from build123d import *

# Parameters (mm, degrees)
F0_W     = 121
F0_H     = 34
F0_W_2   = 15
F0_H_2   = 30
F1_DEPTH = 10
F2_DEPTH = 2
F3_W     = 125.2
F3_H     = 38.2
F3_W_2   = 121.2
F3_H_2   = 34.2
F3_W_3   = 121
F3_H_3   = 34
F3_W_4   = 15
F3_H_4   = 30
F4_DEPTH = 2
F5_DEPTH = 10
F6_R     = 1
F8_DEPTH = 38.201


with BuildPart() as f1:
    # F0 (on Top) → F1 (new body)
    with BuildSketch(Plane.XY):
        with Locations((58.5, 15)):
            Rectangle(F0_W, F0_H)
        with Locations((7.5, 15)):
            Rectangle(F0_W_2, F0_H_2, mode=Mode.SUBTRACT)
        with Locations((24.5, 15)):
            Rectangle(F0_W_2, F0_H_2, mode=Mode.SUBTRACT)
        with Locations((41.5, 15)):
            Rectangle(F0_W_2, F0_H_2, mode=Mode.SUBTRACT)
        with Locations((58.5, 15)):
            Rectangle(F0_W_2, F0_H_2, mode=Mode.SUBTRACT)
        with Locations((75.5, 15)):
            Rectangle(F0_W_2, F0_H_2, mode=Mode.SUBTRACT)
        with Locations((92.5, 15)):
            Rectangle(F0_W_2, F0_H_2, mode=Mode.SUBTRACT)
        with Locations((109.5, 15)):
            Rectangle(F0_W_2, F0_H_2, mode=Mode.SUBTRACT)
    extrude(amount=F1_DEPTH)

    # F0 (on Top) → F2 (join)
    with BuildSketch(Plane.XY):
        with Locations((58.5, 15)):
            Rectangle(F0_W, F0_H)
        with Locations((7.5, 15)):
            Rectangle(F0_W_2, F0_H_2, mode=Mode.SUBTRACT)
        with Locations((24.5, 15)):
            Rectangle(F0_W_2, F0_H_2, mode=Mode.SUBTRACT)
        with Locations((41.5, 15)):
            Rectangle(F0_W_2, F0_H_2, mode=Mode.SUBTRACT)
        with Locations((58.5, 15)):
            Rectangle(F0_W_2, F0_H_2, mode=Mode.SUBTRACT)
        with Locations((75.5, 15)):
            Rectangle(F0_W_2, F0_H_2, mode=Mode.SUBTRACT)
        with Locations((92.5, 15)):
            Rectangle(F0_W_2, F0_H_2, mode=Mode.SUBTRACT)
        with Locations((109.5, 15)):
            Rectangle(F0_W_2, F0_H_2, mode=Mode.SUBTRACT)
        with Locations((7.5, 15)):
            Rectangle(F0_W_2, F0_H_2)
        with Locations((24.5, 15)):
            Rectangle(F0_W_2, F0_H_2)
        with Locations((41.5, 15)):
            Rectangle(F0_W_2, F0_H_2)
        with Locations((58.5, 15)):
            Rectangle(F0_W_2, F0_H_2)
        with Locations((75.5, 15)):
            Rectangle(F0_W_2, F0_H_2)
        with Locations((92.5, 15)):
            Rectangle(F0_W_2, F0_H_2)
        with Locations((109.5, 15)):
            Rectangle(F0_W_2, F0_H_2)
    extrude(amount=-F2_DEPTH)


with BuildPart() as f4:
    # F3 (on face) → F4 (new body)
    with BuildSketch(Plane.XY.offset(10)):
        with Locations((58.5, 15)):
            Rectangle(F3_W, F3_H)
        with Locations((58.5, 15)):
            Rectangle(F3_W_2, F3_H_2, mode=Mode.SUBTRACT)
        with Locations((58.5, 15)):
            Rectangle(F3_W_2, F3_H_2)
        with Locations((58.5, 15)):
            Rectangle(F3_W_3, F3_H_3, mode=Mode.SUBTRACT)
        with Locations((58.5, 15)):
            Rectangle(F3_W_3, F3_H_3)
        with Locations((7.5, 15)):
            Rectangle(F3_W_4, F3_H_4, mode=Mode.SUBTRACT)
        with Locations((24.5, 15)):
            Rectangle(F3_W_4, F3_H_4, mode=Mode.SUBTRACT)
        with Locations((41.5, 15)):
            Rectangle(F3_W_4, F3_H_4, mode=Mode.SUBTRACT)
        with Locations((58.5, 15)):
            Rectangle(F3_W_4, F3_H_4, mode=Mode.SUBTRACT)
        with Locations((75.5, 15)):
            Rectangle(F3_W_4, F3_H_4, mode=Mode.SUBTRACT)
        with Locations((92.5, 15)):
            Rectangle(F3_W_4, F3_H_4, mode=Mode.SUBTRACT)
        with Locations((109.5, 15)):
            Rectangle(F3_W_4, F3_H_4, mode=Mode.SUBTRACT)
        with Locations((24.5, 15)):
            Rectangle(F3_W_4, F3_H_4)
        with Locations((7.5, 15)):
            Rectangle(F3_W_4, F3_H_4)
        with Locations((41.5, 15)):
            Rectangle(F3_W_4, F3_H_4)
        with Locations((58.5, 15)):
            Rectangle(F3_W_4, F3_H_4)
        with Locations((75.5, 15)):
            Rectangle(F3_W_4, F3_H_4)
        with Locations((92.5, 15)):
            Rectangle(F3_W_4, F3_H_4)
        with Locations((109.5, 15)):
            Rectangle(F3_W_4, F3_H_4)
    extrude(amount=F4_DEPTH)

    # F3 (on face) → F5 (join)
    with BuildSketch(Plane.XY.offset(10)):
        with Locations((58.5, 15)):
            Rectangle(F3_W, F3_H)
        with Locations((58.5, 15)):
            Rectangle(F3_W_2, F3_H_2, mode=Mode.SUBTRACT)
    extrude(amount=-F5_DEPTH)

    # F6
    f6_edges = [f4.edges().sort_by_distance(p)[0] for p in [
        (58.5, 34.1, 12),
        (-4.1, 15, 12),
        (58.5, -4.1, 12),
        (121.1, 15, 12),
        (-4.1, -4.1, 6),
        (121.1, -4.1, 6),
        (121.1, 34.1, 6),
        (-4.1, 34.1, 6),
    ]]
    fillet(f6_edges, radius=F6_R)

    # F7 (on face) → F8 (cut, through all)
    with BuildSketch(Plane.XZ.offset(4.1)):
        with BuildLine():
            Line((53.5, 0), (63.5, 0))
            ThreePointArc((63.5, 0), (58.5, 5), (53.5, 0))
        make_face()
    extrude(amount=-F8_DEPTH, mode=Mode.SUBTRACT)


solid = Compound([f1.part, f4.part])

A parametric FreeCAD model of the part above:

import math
import FreeCAD as App
import Part
import Sketcher

V = App.Vector


def edges_at(feature, points):
    """Names of the edges that pass closest to the given points."""
    edges = feature.Shape.Edges
    near = lambda p: min(range(len(edges)), key=lambda i: edges[i].distToShape(Part.Vertex(*p))[0])
    return sorted({f"Edge{near(p) + 1}" for p in points})

doc = App.newDocument("Part")
body = doc.addObject("PartDesign::Body", "Body")

sketch1 = doc.addObject("Sketcher::SketchObject", "Sketch")
body.addObject(sketch1)
sketch1.AttachmentSupport = (doc.XY_Plane, [""])
sketch1.MapMode = "FlatFace"
sketch1.addGeometry(Part.LineSegment(V(-2, 32, 0), V(-2, -2, 0)), False)
sketch1.addGeometry(Part.LineSegment(V(-2, -2, 0), V(119, -2, 0)), False)
sketch1.addGeometry(Part.LineSegment(V(119, -2, 0), V(119, 32, 0)), False)
sketch1.addGeometry(Part.LineSegment(V(119, 32, 0), V(-2, 32, 0)), False)
sketch1.addGeometry(Part.LineSegment(V(15, 0, 0), V(0, 0, 0)), False)
sketch1.addGeometry(Part.LineSegment(V(0, 0, 0), V(0, 30, 0)), False)
sketch1.addGeometry(Part.LineSegment(V(0, 30, 0), V(15, 30, 0)), False)
sketch1.addGeometry(Part.LineSegment(V(15, 30, 0), V(15, 0, 0)), False)
sketch1.addGeometry(Part.LineSegment(V(32, 0, 0), V(17, 0, 0)), False)
sketch1.addGeometry(Part.LineSegment(V(17, 0, 0), V(17, 30, 0)), False)
sketch1.addGeometry(Part.LineSegment(V(17, 30, 0), V(32, 30, 0)), False)
sketch1.addGeometry(Part.LineSegment(V(32, 30, 0), V(32, 0, 0)), False)
sketch1.addGeometry(Part.LineSegment(V(49, 0, 0), V(34, 0, 0)), False)
sketch1.addGeometry(Part.LineSegment(V(34, 0, 0), V(34, 30, 0)), False)
sketch1.addGeometry(Part.LineSegment(V(34, 30, 0), V(49, 30, 0)), False)
sketch1.addGeometry(Part.LineSegment(V(49, 30, 0), V(49, 0, 0)), False)
sketch1.addGeometry(Part.LineSegment(V(66, 0, 0), V(51, 0, 0)), False)
sketch1.addGeometry(Part.LineSegment(V(51, 0, 0), V(51, 30, 0)), False)
sketch1.addGeometry(Part.LineSegment(V(51, 30, 0), V(66, 30, 0)), False)
sketch1.addGeometry(Part.LineSegment(V(66, 30, 0), V(66, 0, 0)), False)
sketch1.addGeometry(Part.LineSegment(V(83, 0, 0), V(68, 0, 0)), False)
sketch1.addGeometry(Part.LineSegment(V(68, 0, 0), V(68, 30, 0)), False)
sketch1.addGeometry(Part.LineSegment(V(68, 30, 0), V(83, 30, 0)), False)
sketch1.addGeometry(Part.LineSegment(V(83, 30, 0), V(83, 0, 0)), False)
sketch1.addGeometry(Part.LineSegment(V(100, 0, 0), V(85, 0, 0)), False)
sketch1.addGeometry(Part.LineSegment(V(85, 0, 0), V(85, 30, 0)), False)
sketch1.addGeometry(Part.LineSegment(V(85, 30, 0), V(100, 30, 0)), False)
sketch1.addGeometry(Part.LineSegment(V(100, 30, 0), V(100, 0, 0)), False)
sketch1.addGeometry(Part.LineSegment(V(117, 0, 0), V(102, 0, 0)), False)
sketch1.addGeometry(Part.LineSegment(V(102, 0, 0), V(102, 30, 0)), False)
sketch1.addGeometry(Part.LineSegment(V(102, 30, 0), V(117, 30, 0)), False)
sketch1.addGeometry(Part.LineSegment(V(117, 30, 0), V(117, 0, 0)), False)
sketch1.addConstraint(Sketcher.Constraint("Coincident", 0, 2, 1, 1))
sketch1.addConstraint(Sketcher.Constraint("Coincident", 1, 2, 2, 1))
sketch1.addConstraint(Sketcher.Constraint("Coincident", 2, 2, 3, 1))
sketch1.addConstraint(Sketcher.Constraint("Coincident", 3, 2, 0, 1))
sketch1.addConstraint(Sketcher.Constraint("Coincident", 4, 2, 5, 1))
sketch1.addConstraint(Sketcher.Constraint("Coincident", 5, 2, 6, 1))
sketch1.addConstraint(Sketcher.Constraint("Coincident", 6, 2, 7, 1))
sketch1.addConstraint(Sketcher.Constraint("Coincident", 7, 2, 4, 1))
sketch1.addConstraint(Sketcher.Constraint("Coincident", 8, 2, 9, 1))
sketch1.addConstraint(Sketcher.Constraint("Coincident", 9, 2, 10, 1))
sketch1.addConstraint(Sketcher.Constraint("Coincident", 10, 2, 11, 1))
sketch1.addConstraint(Sketcher.Constraint("Coincident", 11, 2, 8, 1))
sketch1.addConstraint(Sketcher.Constraint("Coincident", 12, 2, 13, 1))
sketch1.addConstraint(Sketcher.Constraint("Coincident", 13, 2, 14, 1))
sketch1.addConstraint(Sketcher.Constraint("Coincident", 14, 2, 15, 1))
sketch1.addConstraint(Sketcher.Constraint("Coincident", 15, 2, 12, 1))
sketch1.addConstraint(Sketcher.Constraint("Coincident", 16, 2, 17, 1))
sketch1.addConstraint(Sketcher.Constraint("Coincident", 17, 2, 18, 1))
sketch1.addConstraint(Sketcher.Constraint("Coincident", 18, 2, 19, 1))
sketch1.addConstraint(Sketcher.Constraint("Coincident", 19, 2, 16, 1))
sketch1.addConstraint(Sketcher.Constraint("Coincident", 20, 2, 21, 1))
sketch1.addConstraint(Sketcher.Constraint("Coincident", 21, 2, 22, 1))
sketch1.addConstraint(Sketcher.Constraint("Coincident", 22, 2, 23, 1))
sketch1.addConstraint(Sketcher.Constraint("Coincident", 23, 2, 20, 1))
sketch1.addConstraint(Sketcher.Constraint("Coincident", 24, 2, 25, 1))
sketch1.addConstraint(Sketcher.Constraint("Coincident", 25, 2, 26, 1))
sketch1.addConstraint(Sketcher.Constraint("Coincident", 26, 2, 27, 1))
sketch1.addConstraint(Sketcher.Constraint("Coincident", 27, 2, 24, 1))
sketch1.addConstraint(Sketcher.Constraint("Coincident", 28, 2, 29, 1))
sketch1.addConstraint(Sketcher.Constraint("Coincident", 29, 2, 30, 1))
sketch1.addConstraint(Sketcher.Constraint("Coincident", 30, 2, 31, 1))
sketch1.addConstraint(Sketcher.Constraint("Coincident", 31, 2, 28, 1))
sketch1.addConstraint(Sketcher.Constraint("Vertical", 0))
sketch1.addConstraint(Sketcher.Constraint("Horizontal", 1))
sketch1.addConstraint(Sketcher.Constraint("Vertical", 2))
sketch1.addConstraint(Sketcher.Constraint("Horizontal", 3))
sketch1.addConstraint(Sketcher.Constraint("Horizontal", 4))
sketch1.addConstraint(Sketcher.Constraint("Vertical", 5))
sketch1.addConstraint(Sketcher.Constraint("Horizontal", 6))
sketch1.addConstraint(Sketcher.Constraint("Vertical", 7))
sketch1.addConstraint(Sketcher.Constraint("Horizontal", 8))
sketch1.addConstraint(Sketcher.Constraint("Vertical", 9))
sketch1.addConstraint(Sketcher.Constraint("Horizontal", 10))
sketch1.addConstraint(Sketcher.Constraint("Vertical", 11))
sketch1.addConstraint(Sketcher.Constraint("Horizontal", 12))
sketch1.addConstraint(Sketcher.Constraint("Vertical", 13))
sketch1.addConstraint(Sketcher.Constraint("Horizontal", 14))
sketch1.addConstraint(Sketcher.Constraint("Vertical", 15))
sketch1.addConstraint(Sketcher.Constraint("Horizontal", 16))
sketch1.addConstraint(Sketcher.Constraint("Vertical", 17))
sketch1.addConstraint(Sketcher.Constraint("Horizontal", 18))
sketch1.addConstraint(Sketcher.Constraint("Vertical", 19))
sketch1.addConstraint(Sketcher.Constraint("Horizontal", 20))
sketch1.addConstraint(Sketcher.Constraint("Vertical", 21))
sketch1.addConstraint(Sketcher.Constraint("Horizontal", 22))
sketch1.addConstraint(Sketcher.Constraint("Vertical", 23))
sketch1.addConstraint(Sketcher.Constraint("Horizontal", 24))
sketch1.addConstraint(Sketcher.Constraint("Vertical", 25))
sketch1.addConstraint(Sketcher.Constraint("Horizontal", 26))
sketch1.addConstraint(Sketcher.Constraint("Vertical", 27))
sketch1.addConstraint(Sketcher.Constraint("Horizontal", 28))
sketch1.addConstraint(Sketcher.Constraint("Vertical", 29))
sketch1.addConstraint(Sketcher.Constraint("Horizontal", 30))
sketch1.addConstraint(Sketcher.Constraint("Vertical", 31))
sketch1.addConstraint(Sketcher.Constraint("Coincident", 4, 2, -1, 1))
sketch1.addConstraint(Sketcher.Constraint("PointOnObject", 8, 2, -1))
sketch1.addConstraint(Sketcher.Constraint("PointOnObject", 12, 2, -1))
sketch1.addConstraint(Sketcher.Constraint("PointOnObject", 16, 2, -1))
sketch1.addConstraint(Sketcher.Constraint("PointOnObject", 20, 2, -1))
sketch1.addConstraint(Sketcher.Constraint("PointOnObject", 24, 2, -1))
sketch1.addConstraint(Sketcher.Constraint("PointOnObject", 28, 2, -1))
sketch1.addConstraint(Sketcher.Constraint("Horizontal", 6, 2, 9, 2))
sketch1.addConstraint(Sketcher.Constraint("Horizontal", 10, 2, 13, 2))
sketch1.addConstraint(Sketcher.Constraint("Horizontal", 14, 2, 17, 2))
sketch1.addConstraint(Sketcher.Constraint("Horizontal", 18, 2, 21, 2))
sketch1.addConstraint(Sketcher.Constraint("Horizontal", 22, 2, 25, 2))
sketch1.addConstraint(Sketcher.Constraint("Horizontal", 26, 2, 29, 2))
sketch1.addConstraint(Sketcher.Constraint("Equal", 6, 8))
sketch1.addConstraint(Sketcher.Constraint("Equal", 10, 12))
sketch1.addConstraint(Sketcher.Constraint("Equal", 14, 16))
sketch1.addConstraint(Sketcher.Constraint("Equal", 18, 20))
sketch1.addConstraint(Sketcher.Constraint("Equal", 22, 24))
sketch1.addConstraint(Sketcher.Constraint("Equal", 26, 28))
sketch1.addConstraint(Sketcher.Constraint("DistanceX", 1, 1, 1, 2, 121.0))
sketch1.addConstraint(Sketcher.Constraint("DistanceX", 4, 2, 4, 1, 15.0))
sketch1.addConstraint(Sketcher.Constraint("DistanceY", 0, 2, 0, 1, 34.0))
sketch1.addConstraint(Sketcher.Constraint("DistanceY", 5, 1, 5, 2, 30.0))
sketch1.addConstraint(Sketcher.Constraint("DistanceX", 0, 2, -1, 1, 2.0))
sketch1.addConstraint(Sketcher.Constraint("DistanceY", 0, 2, -1, 1, 2.0))
sketch1.addConstraint(Sketcher.Constraint("DistanceX", -1, 1, 8, 2, 17.0))
sketch1.addConstraint(Sketcher.Constraint("DistanceX", -1, 1, 12, 2, 34.0))
sketch1.addConstraint(Sketcher.Constraint("DistanceX", -1, 1, 16, 2, 51.0))
sketch1.addConstraint(Sketcher.Constraint("DistanceX", -1, 1, 20, 2, 68.0))
sketch1.addConstraint(Sketcher.Constraint("DistanceX", -1, 1, 24, 2, 85.0))
sketch1.addConstraint(Sketcher.Constraint("DistanceX", -1, 1, 28, 2, 102.0))
pad1 = doc.addObject("PartDesign::Pad", "Pad")
body.addObject(pad1)
pad1.Profile = sketch1
pad1.Length = 10

sketch2 = doc.addObject("Sketcher::SketchObject", "Sketch001")
body.addObject(sketch2)
sketch2.AttachmentSupport = (doc.XY_Plane, [""])
sketch2.MapMode = "FlatFace"
sketch2.addGeometry(Part.LineSegment(V(-2, 32, 0), V(-2, -2, 0)), False)
sketch2.addGeometry(Part.LineSegment(V(-2, -2, 0), V(119, -2, 0)), False)
sketch2.addGeometry(Part.LineSegment(V(119, -2, 0), V(119, 32, 0)), False)
sketch2.addGeometry(Part.LineSegment(V(119, 32, 0), V(-2, 32, 0)), False)
sketch2.addConstraint(Sketcher.Constraint("Coincident", 0, 2, 1, 1))
sketch2.addConstraint(Sketcher.Constraint("Coincident", 1, 2, 2, 1))
sketch2.addConstraint(Sketcher.Constraint("Coincident", 2, 2, 3, 1))
sketch2.addConstraint(Sketcher.Constraint("Coincident", 3, 2, 0, 1))
sketch2.addConstraint(Sketcher.Constraint("Vertical", 0))
sketch2.addConstraint(Sketcher.Constraint("Horizontal", 1))
sketch2.addConstraint(Sketcher.Constraint("Vertical", 2))
sketch2.addConstraint(Sketcher.Constraint("Horizontal", 3))
sketch2.addConstraint(Sketcher.Constraint("DistanceX", 1, 1, 1, 2, 121.0))
sketch2.addConstraint(Sketcher.Constraint("DistanceY", 0, 2, 0, 1, 34.0))
sketch2.addConstraint(Sketcher.Constraint("DistanceX", 0, 2, -1, 1, 2.0))
sketch2.addConstraint(Sketcher.Constraint("DistanceY", 0, 2, -1, 1, 2.0))
pad2 = doc.addObject("PartDesign::Pad", "Pad001")
body.addObject(pad2)
pad2.Profile = sketch2
pad2.Length = 2
pad2.Reversed = True
body2 = doc.addObject("PartDesign::Body", "Body001")

sketch3 = doc.addObject("Sketcher::SketchObject", "Sketch002")
body2.addObject(sketch3)
sketch3.AttachmentSupport = (doc.getObject("XY_Plane001"), [""])
sketch3.MapMode = "FlatFace"
sketch3.AttachmentOffset = App.Placement(V(0, 0, 10), App.Rotation())
sketch3.addGeometry(Part.LineSegment(V(-4, 34, 0), V(-4, -4, 0)), False)
sketch3.addGeometry(Part.LineSegment(V(-4, -4, 0), V(121, -4, 0)), False)
sketch3.addGeometry(Part.LineSegment(V(121, -4, 0), V(121, 34, 0)), False)
sketch3.addGeometry(Part.LineSegment(V(121, 34, 0), V(-4, 34, 0)), False)
sketch3.addConstraint(Sketcher.Constraint("Coincident", 0, 2, 1, 1))
sketch3.addConstraint(Sketcher.Constraint("Coincident", 1, 2, 2, 1))
sketch3.addConstraint(Sketcher.Constraint("Coincident", 2, 2, 3, 1))
sketch3.addConstraint(Sketcher.Constraint("Coincident", 3, 2, 0, 1))
sketch3.addConstraint(Sketcher.Constraint("Vertical", 0))
sketch3.addConstraint(Sketcher.Constraint("Horizontal", 1))
sketch3.addConstraint(Sketcher.Constraint("Vertical", 2))
sketch3.addConstraint(Sketcher.Constraint("Horizontal", 3))
sketch3.addConstraint(Sketcher.Constraint("DistanceX", 1, 1, 1, 2, 125.2))
sketch3.addConstraint(Sketcher.Constraint("DistanceY", 0, 2, 0, 1, 38.2))
sketch3.addConstraint(Sketcher.Constraint("DistanceX", 0, 2, -1, 1, 4.1))
sketch3.addConstraint(Sketcher.Constraint("DistanceY", 0, 2, -1, 1, 4.1))
pad3 = doc.addObject("PartDesign::Pad", "Pad002")
body2.addObject(pad3)
pad3.Profile = sketch3
pad3.Length = 2

sketch4 = doc.addObject("Sketcher::SketchObject", "Sketch003")
body2.addObject(sketch4)
sketch4.AttachmentSupport = (doc.getObject("XY_Plane001"), [""])
sketch4.MapMode = "FlatFace"
sketch4.AttachmentOffset = App.Placement(V(0, 0, 10), App.Rotation())
sketch4.addGeometry(Part.LineSegment(V(-4, 34, 0), V(-4, -4, 0)), False)
sketch4.addGeometry(Part.LineSegment(V(-4, -4, 0), V(121, -4, 0)), False)
sketch4.addGeometry(Part.LineSegment(V(121, -4, 0), V(121, 34, 0)), False)
sketch4.addGeometry(Part.LineSegment(V(121, 34, 0), V(-4, 34, 0)), False)
sketch4.addGeometry(Part.LineSegment(V(119, -2, 0), V(-2, -2, 0)), False)
sketch4.addGeometry(Part.LineSegment(V(-2, -2, 0), V(-2, 32, 0)), False)
sketch4.addGeometry(Part.LineSegment(V(-2, 32, 0), V(119, 32, 0)), False)
sketch4.addGeometry(Part.LineSegment(V(119, 32, 0), V(119, -2, 0)), False)
sketch4.addConstraint(Sketcher.Constraint("Coincident", 0, 2, 1, 1))
sketch4.addConstraint(Sketcher.Constraint("Coincident", 1, 2, 2, 1))
sketch4.addConstraint(Sketcher.Constraint("Coincident", 2, 2, 3, 1))
sketch4.addConstraint(Sketcher.Constraint("Coincident", 3, 2, 0, 1))
sketch4.addConstraint(Sketcher.Constraint("Coincident", 4, 2, 5, 1))
sketch4.addConstraint(Sketcher.Constraint("Coincident", 5, 2, 6, 1))
sketch4.addConstraint(Sketcher.Constraint("Coincident", 6, 2, 7, 1))
sketch4.addConstraint(Sketcher.Constraint("Coincident", 7, 2, 4, 1))
sketch4.addConstraint(Sketcher.Constraint("Vertical", 0))
sketch4.addConstraint(Sketcher.Constraint("Horizontal", 1))
sketch4.addConstraint(Sketcher.Constraint("Vertical", 2))
sketch4.addConstraint(Sketcher.Constraint("Horizontal", 3))
sketch4.addConstraint(Sketcher.Constraint("Horizontal", 4))
sketch4.addConstraint(Sketcher.Constraint("Vertical", 5))
sketch4.addConstraint(Sketcher.Constraint("Horizontal", 6))
sketch4.addConstraint(Sketcher.Constraint("Vertical", 7))
sketch4.addConstraint(Sketcher.Constraint("DistanceX", 1, 1, 1, 2, 125.2))
sketch4.addConstraint(Sketcher.Constraint("DistanceX", 4, 2, 4, 1, 121.2))
sketch4.addConstraint(Sketcher.Constraint("DistanceY", 0, 2, 0, 1, 38.2))
sketch4.addConstraint(Sketcher.Constraint("DistanceY", 5, 1, 5, 2, 34.2))
sketch4.addConstraint(Sketcher.Constraint("DistanceX", 0, 2, 4, 2, 2.0))
sketch4.addConstraint(Sketcher.Constraint("DistanceY", 0, 2, 4, 2, 2.0))
sketch4.addConstraint(Sketcher.Constraint("DistanceX", 0, 2, -1, 1, 4.1))
sketch4.addConstraint(Sketcher.Constraint("DistanceY", 0, 2, -1, 1, 4.1))
pad4 = doc.addObject("PartDesign::Pad", "Pad003")
body2.addObject(pad4)
pad4.Profile = sketch4
pad4.Length = 10
pad4.Reversed = True
doc.recompute()

fillet = doc.addObject("PartDesign::Fillet", "Fillet")
body2.addObject(fillet)
fillet.Base = (pad4, edges_at(pad4, [
    (58.5, 34.1, 12),
    (-4.1, 15, 12),
    (58.5, -4.1, 12),
    (121.1, 15, 12),
    (-4.1, -4.1, 6),
    (121.1, -4.1, 6),
    (121.1, 34.1, 6),
    (-4.1, 34.1, 6),
]))
fillet.Radius = 1

sketch5 = doc.addObject("Sketcher::SketchObject", "Sketch004")
body2.addObject(sketch5)
sketch5.AttachmentSupport = (doc.getObject("XZ_Plane001"), [""])
sketch5.MapMode = "FlatFace"
sketch5.AttachmentOffset = App.Placement(V(0, 0, 4.1), App.Rotation())
sketch5.addGeometry(Part.LineSegment(V(54, 0, 0), V(64, 0, 0)), False)
sketch5.addGeometry(Part.ArcOfCircle(Part.Circle(V(58, 0, 0), V(0, 0, 1), 5), math.radians(0), math.radians(180)), False)
sketch5.addConstraint(Sketcher.Constraint("Coincident", 0, 1, 1, 2))
sketch5.addConstraint(Sketcher.Constraint("Coincident", 1, 1, 0, 2))
sketch5.addConstraint(Sketcher.Constraint("Horizontal", 0))
sketch5.addConstraint(Sketcher.Constraint("PointOnObject", 1, 3, -1))
sketch5.addConstraint(Sketcher.Constraint("PointOnObject", 0, 1, -1))
sketch5.addConstraint(Sketcher.Constraint("Radius", 1, 5.0))
sketch5.addConstraint(Sketcher.Constraint("DistanceX", -1, 1, 1, 3, 58.5))
pocket1 = doc.addObject("PartDesign::Pocket", "Pocket")
body2.addObject(pocket1)
pocket1.Profile = sketch5
pocket1.Type = "ThroughAll"

doc.recompute()
